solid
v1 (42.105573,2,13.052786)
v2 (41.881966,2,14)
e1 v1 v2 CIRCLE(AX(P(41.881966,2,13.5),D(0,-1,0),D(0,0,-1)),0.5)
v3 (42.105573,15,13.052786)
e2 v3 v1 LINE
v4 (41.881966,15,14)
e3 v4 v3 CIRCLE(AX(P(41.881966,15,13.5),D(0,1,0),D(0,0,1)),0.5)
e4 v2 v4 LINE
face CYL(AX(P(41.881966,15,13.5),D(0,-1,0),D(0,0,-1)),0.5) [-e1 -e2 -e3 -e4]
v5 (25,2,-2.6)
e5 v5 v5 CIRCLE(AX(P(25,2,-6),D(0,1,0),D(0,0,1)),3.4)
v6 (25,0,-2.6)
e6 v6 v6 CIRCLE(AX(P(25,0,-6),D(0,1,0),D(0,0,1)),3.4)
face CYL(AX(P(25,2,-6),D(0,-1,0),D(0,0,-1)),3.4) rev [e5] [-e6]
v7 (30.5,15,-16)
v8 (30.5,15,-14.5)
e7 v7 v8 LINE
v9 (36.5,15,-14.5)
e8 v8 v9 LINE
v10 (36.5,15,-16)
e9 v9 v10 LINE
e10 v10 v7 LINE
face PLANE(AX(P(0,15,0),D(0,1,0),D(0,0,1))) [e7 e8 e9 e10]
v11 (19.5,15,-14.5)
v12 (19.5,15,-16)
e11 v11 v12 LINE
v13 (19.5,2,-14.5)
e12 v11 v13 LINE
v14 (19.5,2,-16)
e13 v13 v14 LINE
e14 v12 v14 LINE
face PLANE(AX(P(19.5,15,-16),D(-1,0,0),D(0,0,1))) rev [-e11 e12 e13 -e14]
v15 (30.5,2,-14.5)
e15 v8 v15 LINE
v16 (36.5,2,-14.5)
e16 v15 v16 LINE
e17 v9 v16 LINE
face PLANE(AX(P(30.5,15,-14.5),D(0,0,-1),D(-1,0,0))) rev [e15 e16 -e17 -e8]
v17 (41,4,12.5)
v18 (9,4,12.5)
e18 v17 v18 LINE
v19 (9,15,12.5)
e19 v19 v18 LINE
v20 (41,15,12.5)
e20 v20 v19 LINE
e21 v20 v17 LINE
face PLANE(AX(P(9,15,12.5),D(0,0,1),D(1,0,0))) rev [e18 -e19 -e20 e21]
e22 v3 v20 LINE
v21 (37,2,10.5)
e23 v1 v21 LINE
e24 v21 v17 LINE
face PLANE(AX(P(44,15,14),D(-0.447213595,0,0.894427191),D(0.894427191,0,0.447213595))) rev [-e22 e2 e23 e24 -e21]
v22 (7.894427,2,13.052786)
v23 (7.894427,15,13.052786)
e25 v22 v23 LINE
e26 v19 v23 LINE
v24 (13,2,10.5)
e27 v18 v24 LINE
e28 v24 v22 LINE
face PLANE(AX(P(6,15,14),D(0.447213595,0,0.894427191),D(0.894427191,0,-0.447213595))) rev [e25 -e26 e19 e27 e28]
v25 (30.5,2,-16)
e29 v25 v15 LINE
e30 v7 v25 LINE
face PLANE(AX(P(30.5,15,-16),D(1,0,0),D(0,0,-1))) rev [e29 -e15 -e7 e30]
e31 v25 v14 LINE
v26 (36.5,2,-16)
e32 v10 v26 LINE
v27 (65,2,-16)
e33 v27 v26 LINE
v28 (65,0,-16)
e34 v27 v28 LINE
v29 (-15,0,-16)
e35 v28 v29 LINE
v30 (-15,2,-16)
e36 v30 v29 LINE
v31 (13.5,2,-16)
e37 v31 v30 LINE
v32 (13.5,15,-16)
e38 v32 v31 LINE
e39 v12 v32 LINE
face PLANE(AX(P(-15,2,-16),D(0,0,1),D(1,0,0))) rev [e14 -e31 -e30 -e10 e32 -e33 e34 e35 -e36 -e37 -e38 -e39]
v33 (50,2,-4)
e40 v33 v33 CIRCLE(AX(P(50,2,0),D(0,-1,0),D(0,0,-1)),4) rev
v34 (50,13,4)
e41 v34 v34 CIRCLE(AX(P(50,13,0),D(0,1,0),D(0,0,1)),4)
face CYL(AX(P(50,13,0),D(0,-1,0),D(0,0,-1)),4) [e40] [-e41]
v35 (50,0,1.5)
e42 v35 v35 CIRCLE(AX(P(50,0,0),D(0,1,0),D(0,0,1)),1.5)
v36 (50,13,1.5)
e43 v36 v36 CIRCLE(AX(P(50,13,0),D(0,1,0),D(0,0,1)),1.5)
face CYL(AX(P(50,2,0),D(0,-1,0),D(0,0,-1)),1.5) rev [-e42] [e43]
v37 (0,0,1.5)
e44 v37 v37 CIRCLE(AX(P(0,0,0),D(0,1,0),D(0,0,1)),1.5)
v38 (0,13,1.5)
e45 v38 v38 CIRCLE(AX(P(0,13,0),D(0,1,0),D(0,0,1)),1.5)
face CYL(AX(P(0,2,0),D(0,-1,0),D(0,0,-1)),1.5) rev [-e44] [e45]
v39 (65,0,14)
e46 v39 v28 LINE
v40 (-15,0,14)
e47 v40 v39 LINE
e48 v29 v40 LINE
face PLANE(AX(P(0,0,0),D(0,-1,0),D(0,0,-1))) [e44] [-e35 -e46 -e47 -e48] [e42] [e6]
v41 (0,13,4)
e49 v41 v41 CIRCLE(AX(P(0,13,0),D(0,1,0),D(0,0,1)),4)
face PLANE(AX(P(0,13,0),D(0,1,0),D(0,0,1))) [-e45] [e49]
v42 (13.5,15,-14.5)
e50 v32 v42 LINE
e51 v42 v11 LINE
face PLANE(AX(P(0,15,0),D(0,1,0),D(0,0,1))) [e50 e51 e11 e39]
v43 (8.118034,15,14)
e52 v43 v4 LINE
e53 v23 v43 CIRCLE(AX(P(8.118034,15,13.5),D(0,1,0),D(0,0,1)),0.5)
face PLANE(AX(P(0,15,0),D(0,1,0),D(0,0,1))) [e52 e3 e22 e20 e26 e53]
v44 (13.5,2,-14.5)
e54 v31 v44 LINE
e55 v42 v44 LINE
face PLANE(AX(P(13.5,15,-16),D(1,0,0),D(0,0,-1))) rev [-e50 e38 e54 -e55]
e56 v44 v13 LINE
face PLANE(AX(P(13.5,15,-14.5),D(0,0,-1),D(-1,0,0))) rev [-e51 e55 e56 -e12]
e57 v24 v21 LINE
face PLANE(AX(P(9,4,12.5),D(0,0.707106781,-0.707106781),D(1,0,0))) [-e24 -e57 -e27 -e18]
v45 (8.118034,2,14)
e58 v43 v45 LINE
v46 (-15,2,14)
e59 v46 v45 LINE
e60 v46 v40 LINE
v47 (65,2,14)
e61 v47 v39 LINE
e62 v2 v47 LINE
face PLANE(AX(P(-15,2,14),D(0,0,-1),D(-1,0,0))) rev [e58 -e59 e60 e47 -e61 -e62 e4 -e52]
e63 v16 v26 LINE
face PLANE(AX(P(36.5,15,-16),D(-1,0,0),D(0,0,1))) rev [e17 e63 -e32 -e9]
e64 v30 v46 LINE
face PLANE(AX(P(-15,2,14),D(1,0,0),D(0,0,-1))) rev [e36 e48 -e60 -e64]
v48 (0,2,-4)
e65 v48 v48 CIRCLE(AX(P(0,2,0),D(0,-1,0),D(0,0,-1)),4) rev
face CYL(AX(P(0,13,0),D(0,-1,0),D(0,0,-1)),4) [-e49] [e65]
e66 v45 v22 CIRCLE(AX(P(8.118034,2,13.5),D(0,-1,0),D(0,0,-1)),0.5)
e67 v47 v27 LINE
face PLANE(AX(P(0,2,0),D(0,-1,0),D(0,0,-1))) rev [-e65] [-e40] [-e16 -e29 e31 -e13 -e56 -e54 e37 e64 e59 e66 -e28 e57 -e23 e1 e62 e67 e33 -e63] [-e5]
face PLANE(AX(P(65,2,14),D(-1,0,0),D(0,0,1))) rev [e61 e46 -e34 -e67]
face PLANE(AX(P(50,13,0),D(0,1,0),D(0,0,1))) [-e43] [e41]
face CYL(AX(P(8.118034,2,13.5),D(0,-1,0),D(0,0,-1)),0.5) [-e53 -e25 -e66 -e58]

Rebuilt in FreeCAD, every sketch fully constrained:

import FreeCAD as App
import Part
import Sketcher

V = App.Vector


def edges_at(feature, points):
    """Names of the edges that pass closest to the given points."""
    edges = feature.Shape.Edges
    near = lambda p: min(range(len(edges)), key=lambda i: edges[i].distToShape(Part.Vertex(*p))[0])
    return sorted({f"Edge{near(p) + 1}" for p in points})


def add_polygon(sketch, points):
    """Adds a closed chain of lines whose ends are joined by coincident constraints."""
    first, n = sketch.GeometryCount, len(points)
    for a, b in zip(points, points[1:] + points[:1]):
        sketch.addGeometry(Part.LineSegment(App.Vector(*a, 0), App.Vector(*b, 0)), False)
    for i in range(n):
        sketch.addConstraint(Sketcher.Constraint("Coincident", first + i, 2, first + (i + 1) % n, 1))

doc = App.newDocument("Part")
body = doc.addObject("PartDesign::Body", "Body")

# Sketch on XZ plane
sketch1 = body.newObject("Sketcher::SketchObject", "Sketch")
sketch1.AttachmentSupport = (doc.getObject("XZ_Plane"), [""])
sketch1.MapMode = "FlatFace"
add_polygon(sketch1, [(-15, -16), (-15, 14), (65, 14), (65, -16)])  # lines 0-3
sketch1.addGeometry(Part.Circle(V(0, 0, 0), V(0, 0, 1), 1.5), False)  # 4
sketch1.addGeometry(Part.Circle(V(50, 0, 0), V(0, 0, 1), 1.5), False)  # 5
sketch1.addGeometry(Part.Circle(V(25, -6, 0), V(0, 0, 1), 3.4), False)  # 6
sketch1.addConstraint([
    Sketcher.Constraint("Vertical", 0),
    Sketcher.Constraint("Horizontal", 1),
    Sketcher.Constraint("Vertical", 2),
    Sketcher.Constraint("Horizontal", 3),
    Sketcher.Constraint("Coincident", 4, 3, -1, 1),
    Sketcher.Constraint("Equal", 4, 5),
    Sketcher.Constraint("PointOnObject", 5, 3, -1),
    Sketcher.Constraint("Diameter", 4, 3.0),
    Sketcher.Constraint("Diameter", 6, 6.8),
    Sketcher.Constraint("DistanceX", 1, 1, 1, 2, 80.0),
    Sketcher.Constraint("DistanceY", 0, 1, 0, 2, 30.0),
    Sketcher.Constraint("DistanceX", -1, 1, 5, 3, 50.0),
    Sketcher.Constraint("DistanceX", -1, 1, 6, 3, 25.0),
    Sketcher.Constraint("DistanceY", 6, 3, -1, 1, 6.0),
    Sketcher.Constraint("DistanceX", 0, 2, -1, 1, 15.0),
    Sketcher.Constraint("DistanceY", -1, 1, 0, 2, 14.0),
])
pad1 = body.newObject("PartDesign::Pad", "Pad")
pad1.Profile = sketch1
pad1.Length = 2
pad1.Reversed = True

# Sketch on XZ plane
sketch2 = body.newObject("Sketcher::SketchObject", "Sketch001")
sketch2.AttachmentSupport = (doc.getObject("XZ_Plane"), [""])
sketch2.MapMode = "FlatFace"
sketch2.AttachmentOffset = App.Placement(V(0, 0, -2), App.Rotation())
add_polygon(sketch2, [(6, 14), (44, 14), (41, 12.5), (9, 12.5)])  # lines 0-3
add_polygon(sketch2, [(13.5, -16), (13.5, -14.5), (19.5, -14.5), (19.5, -16)])  # lines 4-7
add_polygon(sketch2, [(30.5, -16), (30.5, -14.5), (36.5, -14.5), (36.5, -16)])  # lines 8-11
sketch2.addConstraint([
    Sketcher.Constraint("Horizontal", 0),
    Sketcher.Constraint("Horizontal", 2),
    Sketcher.Constraint("Vertical", 4),
    Sketcher.Constraint("Horizontal", 5),
    Sketcher.Constraint("Vertical", 6),
    Sketcher.Constraint("Horizontal", 7),
    Sketcher.Constraint("Vertical", 8),
    Sketcher.Constraint("Horizontal", 9),
    Sketcher.Constraint("Vertical", 10),
    Sketcher.Constraint("Horizontal", 11),
    Sketcher.Constraint("Horizontal", 5, 2, 8, 2),
    Sketcher.Constraint("Horizontal", 7, 2, 10, 2),
    Sketcher.Constraint("Equal", 7, 9),
    Sketcher.Constraint("Equal", 1, 3),
    Sketcher.Constraint("DistanceX", 0, 1, 0, 2, 38.0),
    Sketcher.Constraint("DistanceX", 2, 2, 2, 1, 32.0),
    Sketcher.Constraint("DistanceX", 5, 1, 5, 2, 6.0),
    Sketcher.Constraint("DistanceY", 4, 1, 4, 2, 1.5),
    Sketcher.Constraint("DistanceX", -1, 1, 0, 2, 44.0),
    Sketcher.Constraint("DistanceY", -1, 1, 0, 2, 14.0),
    Sketcher.Constraint("DistanceY", 6, 2, -1, 1, 16.0),
    Sketcher.Constraint("DistanceY", 4, 2, 2, 2, 27.0),
    Sketcher.Constraint("DistanceX", 5, 2, 8, 2, 11.0),
    Sketcher.Constraint("DistanceX", -1, 1, 4, 2, 13.5),
])
pad2 = body.newObject("PartDesign::Pad", "Pad001")
pad2.Profile = sketch2
pad2.Length = 13
pad2.Reversed = True

# Sketch on XZ plane
sketch3 = body.newObject("Sketcher::SketchObject", "Sketch002")
sketch3.AttachmentSupport = (doc.getObject("XZ_Plane"), [""])
sketch3.MapMode = "FlatFace"
sketch3.AttachmentOffset = App.Placement(V(0, 0, -2), App.Rotation())
sketch3.addGeometry([
    Part.Circle(V(50, 0, 0), V(0, 0, 1), 4),
    Part.Circle(V(50, 0, 0), V(0, 0, 1), 1.5),
    Part.Circle(V(0, 0, 0), V(0, 0, 1), 4),
    Part.Circle(V(0, 0, 0), V(0, 0, 1), 1.5),
], False)
sketch3.addConstraint([
    Sketcher.Constraint("Coincident", 2, 3, -1, 1),
    Sketcher.Constraint("Coincident", 3, 3, -1, 1),
    Sketcher.Constraint("Coincident", 1, 3, 0, 3),
    Sketcher.Constraint("Equal", 0, 2),
    Sketcher.Constraint("Equal", 1, 3),
    Sketcher.Constraint("PointOnObject", 0, 3, -1),
    Sketcher.Constraint("Diameter", 0, 8.0),
    Sketcher.Constraint("Diameter", 1, 3.0),
    Sketcher.Constraint("DistanceX", -1, 1, 0, 3, 50.0),
])
pad3 = body.newObject("PartDesign::Pad", "Pad002")
pad3.Profile = sketch3
pad3.Length = 11
pad3.Reversed = True
doc.recompute()

fillet = body.newObject("PartDesign::Fillet", "Fillet")
fillet.Base = (pad3, edges_at(pad3, [(6, 8.5, 14), (44, 8.5, 14)]))
fillet.Radius = 0.5
doc.recompute()

chamfer = body.newObject("PartDesign::Chamfer", "Chamfer")
chamfer.Base = (fillet, edges_at(fillet, [(25, 2, 12.5)]))
chamfer.Size = 2

doc.recompute()
